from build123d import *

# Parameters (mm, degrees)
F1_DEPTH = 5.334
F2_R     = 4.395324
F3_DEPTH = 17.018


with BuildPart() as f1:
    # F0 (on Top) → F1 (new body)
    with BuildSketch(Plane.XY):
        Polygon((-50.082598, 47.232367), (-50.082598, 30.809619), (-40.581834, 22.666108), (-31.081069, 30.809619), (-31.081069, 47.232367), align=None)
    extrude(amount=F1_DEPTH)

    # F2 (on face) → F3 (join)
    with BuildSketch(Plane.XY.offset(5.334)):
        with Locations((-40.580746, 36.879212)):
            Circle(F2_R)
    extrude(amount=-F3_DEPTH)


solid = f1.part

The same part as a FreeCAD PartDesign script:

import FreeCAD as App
import Part
import Sketcher

V = App.Vector
Q = App.Units.Quantity


def add_polygon(sketch, points):
    """Adds a closed chain of lines whose ends are joined by coincident constraints."""
    first, n = sketch.GeometryCount, len(points)
    for a, b in zip(points, points[1:] + points[:1]):
        sketch.addGeometry(Part.LineSegment(App.Vector(*a, 0), App.Vector(*b, 0)), False)
    for i in range(n):
        sketch.addConstraint(Sketcher.Constraint("Coincident", first + i, 2, first + (i + 1) % n, 1))

doc = App.newDocument("Part")
body = doc.addObject("PartDesign::Body", "Body")

sketch1 = doc.addObject("Sketcher::SketchObject", "Sketch")
body.addObject(sketch1)
sketch1.AttachmentSupport = (doc.XY_Plane, [""])
sketch1.MapMode = "FlatFace"
add_polygon(sketch1, [(-50, 47), (-50, 31), (-41, 23), (-31, 31), (-31, 47)])
sketch1.addConstraint(Sketcher.Constraint("Vertical", 0))
sketch1.addConstraint(Sketcher.Constraint("Vertical", 3))
sketch1.addConstraint(Sketcher.Constraint("Horizontal", 4))
sketch1.addConstraint(Sketcher.Constraint("Horizontal", 0, 2, 2, 2))
sketch1.addConstraint(Sketcher.Constraint("Equal", 1, 2))
sketch1.addConstraint(Sketcher.Constraint("DistanceX", 4, 2, 4, 1, 19.001529))
sketch1.addConstraint(Sketcher.Constraint("DistanceY", 0, 2, 0, 1, 16.422748))
sketch1.addConstraint(Sketcher.Constraint("DistanceY", -1, 1, 0, 2, 30.809619))
sketch1.addConstraint(Sketcher.Constraint("DistanceY", -1, 1, 1, 2, 22.666108))
sketch1.addConstraint(Sketcher.Constraint("DistanceX", 2, 2, -1, 1, 31.081069))
pad1 = doc.addObject("PartDesign::Pad", "Pad")
body.addObject(pad1)
pad1.Profile = sketch1
pad1.Length = Q("0.21 in")

sketch2 = doc.addObject("Sketcher::SketchObject", "Sketch001")
body.addObject(sketch2)
sketch2.AttachmentSupport = (doc.XY_Plane, [""])
sketch2.MapMode = "FlatFace"
sketch2.AttachmentOffset = App.Placement(V(0, 0, 0.21 * 25.4), App.Rotation())
sketch2.addGeometry(Part.Circle(V(-40.6, 36.9, 0), V(0, 0, 1), 4.4), False)
sketch2.addConstraint(Sketcher.Constraint("Diameter", 0, 8.790648))
sketch2.addConstraint(Sketcher.Constraint("DistanceX", 0, 3, -1, 1, 40.580746))
sketch2.addConstraint(Sketcher.Constraint("DistanceY", -1, 1, 0, 3, 36.879212))
pad2 = doc.addObject("PartDesign::Pad", "Pad001")
body.addObject(pad2)
pad2.Profile = sketch2
pad2.Length = Q("0.67 in")
pad2.Reversed = True

doc.recompute()
